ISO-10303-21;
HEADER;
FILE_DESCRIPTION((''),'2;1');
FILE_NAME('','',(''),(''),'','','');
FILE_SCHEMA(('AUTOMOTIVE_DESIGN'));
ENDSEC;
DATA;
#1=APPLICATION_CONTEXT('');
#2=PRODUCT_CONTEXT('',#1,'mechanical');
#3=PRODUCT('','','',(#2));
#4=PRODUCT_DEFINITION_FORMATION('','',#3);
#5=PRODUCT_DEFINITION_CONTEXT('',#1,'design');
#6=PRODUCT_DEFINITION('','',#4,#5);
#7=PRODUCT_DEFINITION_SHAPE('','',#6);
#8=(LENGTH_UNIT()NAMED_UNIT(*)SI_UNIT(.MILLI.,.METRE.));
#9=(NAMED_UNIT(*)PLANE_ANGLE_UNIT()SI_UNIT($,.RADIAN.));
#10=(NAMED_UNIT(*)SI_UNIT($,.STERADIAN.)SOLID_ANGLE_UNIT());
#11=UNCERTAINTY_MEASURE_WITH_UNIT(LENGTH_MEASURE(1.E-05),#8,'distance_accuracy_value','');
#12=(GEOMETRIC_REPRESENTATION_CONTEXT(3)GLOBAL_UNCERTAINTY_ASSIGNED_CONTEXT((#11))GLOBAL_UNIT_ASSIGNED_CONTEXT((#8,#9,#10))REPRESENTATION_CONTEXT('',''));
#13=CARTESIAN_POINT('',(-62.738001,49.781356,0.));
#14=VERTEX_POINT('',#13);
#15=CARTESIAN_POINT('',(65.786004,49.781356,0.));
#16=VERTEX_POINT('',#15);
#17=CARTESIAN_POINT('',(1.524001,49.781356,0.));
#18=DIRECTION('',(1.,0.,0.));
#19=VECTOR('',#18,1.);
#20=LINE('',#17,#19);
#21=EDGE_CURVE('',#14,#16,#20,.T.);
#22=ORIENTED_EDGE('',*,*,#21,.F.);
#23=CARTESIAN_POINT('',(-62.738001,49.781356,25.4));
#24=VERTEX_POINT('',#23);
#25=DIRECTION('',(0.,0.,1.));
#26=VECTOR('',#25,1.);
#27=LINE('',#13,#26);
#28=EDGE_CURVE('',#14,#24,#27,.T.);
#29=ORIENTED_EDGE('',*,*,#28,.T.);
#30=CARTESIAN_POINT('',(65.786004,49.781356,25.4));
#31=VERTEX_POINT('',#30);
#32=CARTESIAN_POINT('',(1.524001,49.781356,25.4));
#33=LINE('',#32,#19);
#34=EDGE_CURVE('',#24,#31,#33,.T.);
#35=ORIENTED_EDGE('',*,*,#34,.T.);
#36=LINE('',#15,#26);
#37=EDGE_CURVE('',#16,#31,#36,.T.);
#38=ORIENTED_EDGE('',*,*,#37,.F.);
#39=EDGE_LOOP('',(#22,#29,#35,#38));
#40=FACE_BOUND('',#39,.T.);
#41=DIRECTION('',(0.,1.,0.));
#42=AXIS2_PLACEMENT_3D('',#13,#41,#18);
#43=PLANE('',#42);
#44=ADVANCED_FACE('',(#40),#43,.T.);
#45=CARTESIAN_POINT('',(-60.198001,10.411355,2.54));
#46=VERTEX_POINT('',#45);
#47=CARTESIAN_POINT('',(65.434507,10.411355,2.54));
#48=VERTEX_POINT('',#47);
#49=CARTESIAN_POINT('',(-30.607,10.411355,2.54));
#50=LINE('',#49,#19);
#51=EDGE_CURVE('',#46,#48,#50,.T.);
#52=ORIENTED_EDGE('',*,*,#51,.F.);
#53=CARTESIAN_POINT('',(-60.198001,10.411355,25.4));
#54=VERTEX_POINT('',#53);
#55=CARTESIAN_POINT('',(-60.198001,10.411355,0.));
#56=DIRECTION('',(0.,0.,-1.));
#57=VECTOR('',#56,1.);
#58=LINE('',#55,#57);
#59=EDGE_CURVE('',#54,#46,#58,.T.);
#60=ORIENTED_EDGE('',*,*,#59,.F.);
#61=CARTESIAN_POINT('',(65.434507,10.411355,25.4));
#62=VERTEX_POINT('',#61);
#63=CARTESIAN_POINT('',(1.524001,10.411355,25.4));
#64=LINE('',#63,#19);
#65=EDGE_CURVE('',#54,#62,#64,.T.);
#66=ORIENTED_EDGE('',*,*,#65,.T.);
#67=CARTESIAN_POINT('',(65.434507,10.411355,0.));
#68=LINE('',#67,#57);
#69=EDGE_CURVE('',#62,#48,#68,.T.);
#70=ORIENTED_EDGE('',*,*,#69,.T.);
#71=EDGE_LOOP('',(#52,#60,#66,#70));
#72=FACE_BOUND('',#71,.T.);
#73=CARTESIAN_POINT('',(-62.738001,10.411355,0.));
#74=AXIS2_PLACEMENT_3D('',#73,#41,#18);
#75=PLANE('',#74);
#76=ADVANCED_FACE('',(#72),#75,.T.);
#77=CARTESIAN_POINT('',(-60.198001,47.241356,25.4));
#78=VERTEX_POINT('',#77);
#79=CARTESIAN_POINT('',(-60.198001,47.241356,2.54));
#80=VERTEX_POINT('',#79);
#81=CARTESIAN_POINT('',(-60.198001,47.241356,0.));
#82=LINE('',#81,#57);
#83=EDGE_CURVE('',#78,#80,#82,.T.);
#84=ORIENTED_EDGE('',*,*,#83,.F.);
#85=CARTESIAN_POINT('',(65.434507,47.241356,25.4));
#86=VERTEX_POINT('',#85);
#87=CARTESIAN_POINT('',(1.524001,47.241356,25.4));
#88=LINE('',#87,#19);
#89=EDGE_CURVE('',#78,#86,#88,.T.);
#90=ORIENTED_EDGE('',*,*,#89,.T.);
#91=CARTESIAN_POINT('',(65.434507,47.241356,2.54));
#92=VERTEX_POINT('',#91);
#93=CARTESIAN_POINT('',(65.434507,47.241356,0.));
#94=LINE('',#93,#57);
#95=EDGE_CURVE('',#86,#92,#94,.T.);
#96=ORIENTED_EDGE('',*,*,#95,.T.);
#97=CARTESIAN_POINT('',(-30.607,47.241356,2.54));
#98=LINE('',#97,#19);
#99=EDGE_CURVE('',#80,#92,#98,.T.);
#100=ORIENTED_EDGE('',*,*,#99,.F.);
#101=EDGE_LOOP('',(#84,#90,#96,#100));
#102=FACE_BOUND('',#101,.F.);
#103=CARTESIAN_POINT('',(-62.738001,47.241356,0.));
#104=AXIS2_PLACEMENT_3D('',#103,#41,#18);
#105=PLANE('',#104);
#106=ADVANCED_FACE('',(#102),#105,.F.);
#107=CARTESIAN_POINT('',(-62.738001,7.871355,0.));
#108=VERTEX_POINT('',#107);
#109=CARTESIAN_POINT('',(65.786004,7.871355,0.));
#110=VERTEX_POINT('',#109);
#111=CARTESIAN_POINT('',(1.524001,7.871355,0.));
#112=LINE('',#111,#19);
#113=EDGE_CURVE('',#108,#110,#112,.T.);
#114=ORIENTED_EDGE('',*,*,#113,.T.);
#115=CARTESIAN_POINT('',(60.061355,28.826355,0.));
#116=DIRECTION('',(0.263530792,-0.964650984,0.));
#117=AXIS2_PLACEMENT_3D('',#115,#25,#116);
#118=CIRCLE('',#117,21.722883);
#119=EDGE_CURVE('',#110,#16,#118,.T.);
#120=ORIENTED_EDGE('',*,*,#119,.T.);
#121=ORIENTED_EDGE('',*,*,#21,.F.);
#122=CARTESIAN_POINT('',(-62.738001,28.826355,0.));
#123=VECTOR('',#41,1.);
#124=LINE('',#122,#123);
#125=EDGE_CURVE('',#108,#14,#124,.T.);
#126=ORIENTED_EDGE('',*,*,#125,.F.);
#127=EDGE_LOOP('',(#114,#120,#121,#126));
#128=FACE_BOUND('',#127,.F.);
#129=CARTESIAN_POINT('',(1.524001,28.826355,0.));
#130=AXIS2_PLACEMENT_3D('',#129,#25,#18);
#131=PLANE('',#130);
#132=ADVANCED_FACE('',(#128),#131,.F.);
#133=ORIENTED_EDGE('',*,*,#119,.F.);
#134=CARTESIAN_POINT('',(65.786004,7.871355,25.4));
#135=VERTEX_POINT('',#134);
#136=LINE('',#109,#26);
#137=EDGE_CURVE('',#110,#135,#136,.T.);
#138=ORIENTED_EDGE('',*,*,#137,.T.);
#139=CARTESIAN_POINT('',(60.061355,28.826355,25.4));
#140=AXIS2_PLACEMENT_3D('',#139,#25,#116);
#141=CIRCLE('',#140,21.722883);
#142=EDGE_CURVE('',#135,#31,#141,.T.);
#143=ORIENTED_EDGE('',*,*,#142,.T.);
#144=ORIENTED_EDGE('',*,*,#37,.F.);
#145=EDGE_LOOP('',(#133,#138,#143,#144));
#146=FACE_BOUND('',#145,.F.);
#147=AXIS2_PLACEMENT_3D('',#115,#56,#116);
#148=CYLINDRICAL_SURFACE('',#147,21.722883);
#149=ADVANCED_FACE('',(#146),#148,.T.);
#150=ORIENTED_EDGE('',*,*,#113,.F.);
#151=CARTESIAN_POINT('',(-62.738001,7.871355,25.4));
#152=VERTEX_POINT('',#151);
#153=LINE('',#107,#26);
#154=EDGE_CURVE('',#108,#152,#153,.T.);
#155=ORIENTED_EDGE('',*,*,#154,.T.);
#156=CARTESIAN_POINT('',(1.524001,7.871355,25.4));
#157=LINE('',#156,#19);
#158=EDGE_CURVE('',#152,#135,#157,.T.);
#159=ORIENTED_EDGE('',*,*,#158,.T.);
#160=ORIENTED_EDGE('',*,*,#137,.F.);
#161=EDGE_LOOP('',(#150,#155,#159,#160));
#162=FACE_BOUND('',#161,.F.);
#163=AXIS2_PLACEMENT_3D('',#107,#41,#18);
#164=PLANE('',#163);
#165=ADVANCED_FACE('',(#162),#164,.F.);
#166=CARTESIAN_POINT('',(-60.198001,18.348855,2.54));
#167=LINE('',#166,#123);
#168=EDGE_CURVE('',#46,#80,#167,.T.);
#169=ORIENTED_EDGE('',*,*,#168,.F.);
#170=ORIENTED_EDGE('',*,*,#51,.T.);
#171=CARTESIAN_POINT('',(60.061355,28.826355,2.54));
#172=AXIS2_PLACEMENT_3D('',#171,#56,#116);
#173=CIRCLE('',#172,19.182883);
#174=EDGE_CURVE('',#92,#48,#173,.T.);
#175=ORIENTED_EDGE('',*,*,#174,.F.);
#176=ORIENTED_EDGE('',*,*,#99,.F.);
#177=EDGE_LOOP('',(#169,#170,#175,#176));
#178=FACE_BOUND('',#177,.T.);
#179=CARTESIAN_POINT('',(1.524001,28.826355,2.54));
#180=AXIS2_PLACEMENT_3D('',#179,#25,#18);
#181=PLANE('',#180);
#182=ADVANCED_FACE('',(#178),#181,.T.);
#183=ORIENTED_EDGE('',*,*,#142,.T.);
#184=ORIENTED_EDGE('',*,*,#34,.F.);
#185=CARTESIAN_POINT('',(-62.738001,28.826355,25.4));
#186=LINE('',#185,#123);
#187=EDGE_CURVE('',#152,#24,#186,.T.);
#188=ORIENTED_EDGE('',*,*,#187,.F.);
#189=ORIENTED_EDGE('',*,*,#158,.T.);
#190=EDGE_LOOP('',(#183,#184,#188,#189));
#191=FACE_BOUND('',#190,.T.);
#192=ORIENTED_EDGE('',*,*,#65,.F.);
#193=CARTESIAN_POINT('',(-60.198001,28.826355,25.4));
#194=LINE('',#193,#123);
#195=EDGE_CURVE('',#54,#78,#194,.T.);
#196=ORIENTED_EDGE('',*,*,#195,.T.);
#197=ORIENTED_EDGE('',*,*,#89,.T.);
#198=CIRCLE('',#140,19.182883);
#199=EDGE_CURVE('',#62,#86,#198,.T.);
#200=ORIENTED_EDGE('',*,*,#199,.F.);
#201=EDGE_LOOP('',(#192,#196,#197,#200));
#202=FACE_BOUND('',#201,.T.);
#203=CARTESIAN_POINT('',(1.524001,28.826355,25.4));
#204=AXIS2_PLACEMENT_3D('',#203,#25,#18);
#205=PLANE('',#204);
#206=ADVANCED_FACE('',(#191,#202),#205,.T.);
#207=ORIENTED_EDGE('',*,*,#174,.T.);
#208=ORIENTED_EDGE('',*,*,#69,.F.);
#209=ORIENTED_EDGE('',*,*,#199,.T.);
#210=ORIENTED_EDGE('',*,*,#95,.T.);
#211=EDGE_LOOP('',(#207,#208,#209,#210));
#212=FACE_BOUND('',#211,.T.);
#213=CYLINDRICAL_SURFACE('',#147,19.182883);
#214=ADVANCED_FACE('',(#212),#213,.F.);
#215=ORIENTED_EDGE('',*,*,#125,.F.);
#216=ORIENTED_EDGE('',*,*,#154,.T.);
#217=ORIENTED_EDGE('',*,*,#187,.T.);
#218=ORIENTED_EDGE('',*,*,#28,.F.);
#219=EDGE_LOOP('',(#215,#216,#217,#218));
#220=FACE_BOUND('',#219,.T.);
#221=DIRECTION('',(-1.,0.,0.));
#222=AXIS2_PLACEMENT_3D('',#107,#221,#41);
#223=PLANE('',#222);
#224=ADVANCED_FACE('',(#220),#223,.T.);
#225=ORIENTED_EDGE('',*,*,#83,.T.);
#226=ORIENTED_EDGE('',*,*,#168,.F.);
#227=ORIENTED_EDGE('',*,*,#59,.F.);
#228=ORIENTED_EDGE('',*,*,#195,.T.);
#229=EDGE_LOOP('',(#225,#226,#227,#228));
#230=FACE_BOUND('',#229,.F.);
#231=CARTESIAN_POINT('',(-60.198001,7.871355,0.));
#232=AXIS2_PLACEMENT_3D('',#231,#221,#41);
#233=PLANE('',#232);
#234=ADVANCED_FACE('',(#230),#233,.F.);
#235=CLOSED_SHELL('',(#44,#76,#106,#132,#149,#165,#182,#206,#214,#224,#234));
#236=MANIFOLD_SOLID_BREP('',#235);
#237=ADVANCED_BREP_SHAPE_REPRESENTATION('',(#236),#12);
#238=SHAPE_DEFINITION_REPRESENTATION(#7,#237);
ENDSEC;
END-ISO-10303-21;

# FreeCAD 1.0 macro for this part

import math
import FreeCAD as App
import Part
import Sketcher
Q = App.Units.Quantity


def faces_at(feature, points):
    """Names of the faces that lie closest to the given points."""
    faces = feature.Shape.Faces
    near = lambda p: min(range(len(faces)), key=lambda i: faces[i].distToShape(Part.Vertex(*p))[0])
    return sorted({f"Face{near(p) + 1}" for p in points})

doc = App.newDocument("Part")
body = doc.addObject("PartDesign::Body", "Body")

# Sketch on XY plane
sketch1 = body.newObject("Sketcher::SketchObject", "Sketch")
sketch1.AttachmentSupport = (doc.getObject("XY_Plane"), [""])
sketch1.MapMode = "FlatFace"
sketch1.addGeometry(Part.LineSegment(App.Vector(-63, 50, 0), App.Vector(-63, 8, 0)), False)
sketch1.addGeometry(Part.LineSegment(App.Vector(-63, 8, 0), App.Vector(66, 8, 0)), False)
sketch1.addGeometry(Part.ArcOfCircle(Part.Circle(App.Vector(60, 29, 0), App.Vector(0, 0, 1), 22), math.radians(-75), math.radians(75)), False)
sketch1.addGeometry(Part.LineSegment(App.Vector(66, 50, 0), App.Vector(-63, 50, 0)), False)
sketch1.addConstraint(Sketcher.Constraint("Coincident", 0, 2, 1, 1))
sketch1.addConstraint(Sketcher.Constraint("Coincident", 1, 2, 2, 1))
sketch1.addConstraint(Sketcher.Constraint("Coincident", 2, 2, 3, 1))
sketch1.addConstraint(Sketcher.Constraint("Coincident", 3, 2, 0, 1))
sketch1.addConstraint(Sketcher.Constraint("Vertical", 0))
sketch1.addConstraint(Sketcher.Constraint("Horizontal", 1))
sketch1.addConstraint(Sketcher.Constraint("Horizontal", 3))
sketch1.addConstraint(Sketcher.Constraint("Vertical", 1, 2, 2, 2))
sketch1.addConstraint(Sketcher.Constraint("DistanceY", 0, 2, 0, 1, Q("1.65 in")))
sketch1.addConstraint(Sketcher.Constraint("DistanceX", 0, 2, -1, 1, Q("2.4700001 in")))
sketch1.addConstraint(Sketcher.Constraint("DistanceX", -1, 1, 1, 2, Q("2.5900002 in")))
sketch1.addConstraint(Sketcher.Constraint("Radius", 2, Q("21.722883 mm")))
sketch1.addConstraint(Sketcher.Constraint("DistanceY", -1, 1, 2, 3, Q("28.826355 mm")))
pad1 = body.newObject("PartDesign::Pad", "Pad")
pad1.Profile = sketch1
pad1.Length = Q("1 in")
doc.recompute()

thickness = body.newObject("PartDesign::Thickness", "Thickness")
thickness.Base = (pad1, faces_at(pad1, [(9.523, 28.826, 25.4)]))
thickness.Value = Q("0.1 in")
thickness.Reversed = True
thickness.Join = "Arc"

doc.recompute()
